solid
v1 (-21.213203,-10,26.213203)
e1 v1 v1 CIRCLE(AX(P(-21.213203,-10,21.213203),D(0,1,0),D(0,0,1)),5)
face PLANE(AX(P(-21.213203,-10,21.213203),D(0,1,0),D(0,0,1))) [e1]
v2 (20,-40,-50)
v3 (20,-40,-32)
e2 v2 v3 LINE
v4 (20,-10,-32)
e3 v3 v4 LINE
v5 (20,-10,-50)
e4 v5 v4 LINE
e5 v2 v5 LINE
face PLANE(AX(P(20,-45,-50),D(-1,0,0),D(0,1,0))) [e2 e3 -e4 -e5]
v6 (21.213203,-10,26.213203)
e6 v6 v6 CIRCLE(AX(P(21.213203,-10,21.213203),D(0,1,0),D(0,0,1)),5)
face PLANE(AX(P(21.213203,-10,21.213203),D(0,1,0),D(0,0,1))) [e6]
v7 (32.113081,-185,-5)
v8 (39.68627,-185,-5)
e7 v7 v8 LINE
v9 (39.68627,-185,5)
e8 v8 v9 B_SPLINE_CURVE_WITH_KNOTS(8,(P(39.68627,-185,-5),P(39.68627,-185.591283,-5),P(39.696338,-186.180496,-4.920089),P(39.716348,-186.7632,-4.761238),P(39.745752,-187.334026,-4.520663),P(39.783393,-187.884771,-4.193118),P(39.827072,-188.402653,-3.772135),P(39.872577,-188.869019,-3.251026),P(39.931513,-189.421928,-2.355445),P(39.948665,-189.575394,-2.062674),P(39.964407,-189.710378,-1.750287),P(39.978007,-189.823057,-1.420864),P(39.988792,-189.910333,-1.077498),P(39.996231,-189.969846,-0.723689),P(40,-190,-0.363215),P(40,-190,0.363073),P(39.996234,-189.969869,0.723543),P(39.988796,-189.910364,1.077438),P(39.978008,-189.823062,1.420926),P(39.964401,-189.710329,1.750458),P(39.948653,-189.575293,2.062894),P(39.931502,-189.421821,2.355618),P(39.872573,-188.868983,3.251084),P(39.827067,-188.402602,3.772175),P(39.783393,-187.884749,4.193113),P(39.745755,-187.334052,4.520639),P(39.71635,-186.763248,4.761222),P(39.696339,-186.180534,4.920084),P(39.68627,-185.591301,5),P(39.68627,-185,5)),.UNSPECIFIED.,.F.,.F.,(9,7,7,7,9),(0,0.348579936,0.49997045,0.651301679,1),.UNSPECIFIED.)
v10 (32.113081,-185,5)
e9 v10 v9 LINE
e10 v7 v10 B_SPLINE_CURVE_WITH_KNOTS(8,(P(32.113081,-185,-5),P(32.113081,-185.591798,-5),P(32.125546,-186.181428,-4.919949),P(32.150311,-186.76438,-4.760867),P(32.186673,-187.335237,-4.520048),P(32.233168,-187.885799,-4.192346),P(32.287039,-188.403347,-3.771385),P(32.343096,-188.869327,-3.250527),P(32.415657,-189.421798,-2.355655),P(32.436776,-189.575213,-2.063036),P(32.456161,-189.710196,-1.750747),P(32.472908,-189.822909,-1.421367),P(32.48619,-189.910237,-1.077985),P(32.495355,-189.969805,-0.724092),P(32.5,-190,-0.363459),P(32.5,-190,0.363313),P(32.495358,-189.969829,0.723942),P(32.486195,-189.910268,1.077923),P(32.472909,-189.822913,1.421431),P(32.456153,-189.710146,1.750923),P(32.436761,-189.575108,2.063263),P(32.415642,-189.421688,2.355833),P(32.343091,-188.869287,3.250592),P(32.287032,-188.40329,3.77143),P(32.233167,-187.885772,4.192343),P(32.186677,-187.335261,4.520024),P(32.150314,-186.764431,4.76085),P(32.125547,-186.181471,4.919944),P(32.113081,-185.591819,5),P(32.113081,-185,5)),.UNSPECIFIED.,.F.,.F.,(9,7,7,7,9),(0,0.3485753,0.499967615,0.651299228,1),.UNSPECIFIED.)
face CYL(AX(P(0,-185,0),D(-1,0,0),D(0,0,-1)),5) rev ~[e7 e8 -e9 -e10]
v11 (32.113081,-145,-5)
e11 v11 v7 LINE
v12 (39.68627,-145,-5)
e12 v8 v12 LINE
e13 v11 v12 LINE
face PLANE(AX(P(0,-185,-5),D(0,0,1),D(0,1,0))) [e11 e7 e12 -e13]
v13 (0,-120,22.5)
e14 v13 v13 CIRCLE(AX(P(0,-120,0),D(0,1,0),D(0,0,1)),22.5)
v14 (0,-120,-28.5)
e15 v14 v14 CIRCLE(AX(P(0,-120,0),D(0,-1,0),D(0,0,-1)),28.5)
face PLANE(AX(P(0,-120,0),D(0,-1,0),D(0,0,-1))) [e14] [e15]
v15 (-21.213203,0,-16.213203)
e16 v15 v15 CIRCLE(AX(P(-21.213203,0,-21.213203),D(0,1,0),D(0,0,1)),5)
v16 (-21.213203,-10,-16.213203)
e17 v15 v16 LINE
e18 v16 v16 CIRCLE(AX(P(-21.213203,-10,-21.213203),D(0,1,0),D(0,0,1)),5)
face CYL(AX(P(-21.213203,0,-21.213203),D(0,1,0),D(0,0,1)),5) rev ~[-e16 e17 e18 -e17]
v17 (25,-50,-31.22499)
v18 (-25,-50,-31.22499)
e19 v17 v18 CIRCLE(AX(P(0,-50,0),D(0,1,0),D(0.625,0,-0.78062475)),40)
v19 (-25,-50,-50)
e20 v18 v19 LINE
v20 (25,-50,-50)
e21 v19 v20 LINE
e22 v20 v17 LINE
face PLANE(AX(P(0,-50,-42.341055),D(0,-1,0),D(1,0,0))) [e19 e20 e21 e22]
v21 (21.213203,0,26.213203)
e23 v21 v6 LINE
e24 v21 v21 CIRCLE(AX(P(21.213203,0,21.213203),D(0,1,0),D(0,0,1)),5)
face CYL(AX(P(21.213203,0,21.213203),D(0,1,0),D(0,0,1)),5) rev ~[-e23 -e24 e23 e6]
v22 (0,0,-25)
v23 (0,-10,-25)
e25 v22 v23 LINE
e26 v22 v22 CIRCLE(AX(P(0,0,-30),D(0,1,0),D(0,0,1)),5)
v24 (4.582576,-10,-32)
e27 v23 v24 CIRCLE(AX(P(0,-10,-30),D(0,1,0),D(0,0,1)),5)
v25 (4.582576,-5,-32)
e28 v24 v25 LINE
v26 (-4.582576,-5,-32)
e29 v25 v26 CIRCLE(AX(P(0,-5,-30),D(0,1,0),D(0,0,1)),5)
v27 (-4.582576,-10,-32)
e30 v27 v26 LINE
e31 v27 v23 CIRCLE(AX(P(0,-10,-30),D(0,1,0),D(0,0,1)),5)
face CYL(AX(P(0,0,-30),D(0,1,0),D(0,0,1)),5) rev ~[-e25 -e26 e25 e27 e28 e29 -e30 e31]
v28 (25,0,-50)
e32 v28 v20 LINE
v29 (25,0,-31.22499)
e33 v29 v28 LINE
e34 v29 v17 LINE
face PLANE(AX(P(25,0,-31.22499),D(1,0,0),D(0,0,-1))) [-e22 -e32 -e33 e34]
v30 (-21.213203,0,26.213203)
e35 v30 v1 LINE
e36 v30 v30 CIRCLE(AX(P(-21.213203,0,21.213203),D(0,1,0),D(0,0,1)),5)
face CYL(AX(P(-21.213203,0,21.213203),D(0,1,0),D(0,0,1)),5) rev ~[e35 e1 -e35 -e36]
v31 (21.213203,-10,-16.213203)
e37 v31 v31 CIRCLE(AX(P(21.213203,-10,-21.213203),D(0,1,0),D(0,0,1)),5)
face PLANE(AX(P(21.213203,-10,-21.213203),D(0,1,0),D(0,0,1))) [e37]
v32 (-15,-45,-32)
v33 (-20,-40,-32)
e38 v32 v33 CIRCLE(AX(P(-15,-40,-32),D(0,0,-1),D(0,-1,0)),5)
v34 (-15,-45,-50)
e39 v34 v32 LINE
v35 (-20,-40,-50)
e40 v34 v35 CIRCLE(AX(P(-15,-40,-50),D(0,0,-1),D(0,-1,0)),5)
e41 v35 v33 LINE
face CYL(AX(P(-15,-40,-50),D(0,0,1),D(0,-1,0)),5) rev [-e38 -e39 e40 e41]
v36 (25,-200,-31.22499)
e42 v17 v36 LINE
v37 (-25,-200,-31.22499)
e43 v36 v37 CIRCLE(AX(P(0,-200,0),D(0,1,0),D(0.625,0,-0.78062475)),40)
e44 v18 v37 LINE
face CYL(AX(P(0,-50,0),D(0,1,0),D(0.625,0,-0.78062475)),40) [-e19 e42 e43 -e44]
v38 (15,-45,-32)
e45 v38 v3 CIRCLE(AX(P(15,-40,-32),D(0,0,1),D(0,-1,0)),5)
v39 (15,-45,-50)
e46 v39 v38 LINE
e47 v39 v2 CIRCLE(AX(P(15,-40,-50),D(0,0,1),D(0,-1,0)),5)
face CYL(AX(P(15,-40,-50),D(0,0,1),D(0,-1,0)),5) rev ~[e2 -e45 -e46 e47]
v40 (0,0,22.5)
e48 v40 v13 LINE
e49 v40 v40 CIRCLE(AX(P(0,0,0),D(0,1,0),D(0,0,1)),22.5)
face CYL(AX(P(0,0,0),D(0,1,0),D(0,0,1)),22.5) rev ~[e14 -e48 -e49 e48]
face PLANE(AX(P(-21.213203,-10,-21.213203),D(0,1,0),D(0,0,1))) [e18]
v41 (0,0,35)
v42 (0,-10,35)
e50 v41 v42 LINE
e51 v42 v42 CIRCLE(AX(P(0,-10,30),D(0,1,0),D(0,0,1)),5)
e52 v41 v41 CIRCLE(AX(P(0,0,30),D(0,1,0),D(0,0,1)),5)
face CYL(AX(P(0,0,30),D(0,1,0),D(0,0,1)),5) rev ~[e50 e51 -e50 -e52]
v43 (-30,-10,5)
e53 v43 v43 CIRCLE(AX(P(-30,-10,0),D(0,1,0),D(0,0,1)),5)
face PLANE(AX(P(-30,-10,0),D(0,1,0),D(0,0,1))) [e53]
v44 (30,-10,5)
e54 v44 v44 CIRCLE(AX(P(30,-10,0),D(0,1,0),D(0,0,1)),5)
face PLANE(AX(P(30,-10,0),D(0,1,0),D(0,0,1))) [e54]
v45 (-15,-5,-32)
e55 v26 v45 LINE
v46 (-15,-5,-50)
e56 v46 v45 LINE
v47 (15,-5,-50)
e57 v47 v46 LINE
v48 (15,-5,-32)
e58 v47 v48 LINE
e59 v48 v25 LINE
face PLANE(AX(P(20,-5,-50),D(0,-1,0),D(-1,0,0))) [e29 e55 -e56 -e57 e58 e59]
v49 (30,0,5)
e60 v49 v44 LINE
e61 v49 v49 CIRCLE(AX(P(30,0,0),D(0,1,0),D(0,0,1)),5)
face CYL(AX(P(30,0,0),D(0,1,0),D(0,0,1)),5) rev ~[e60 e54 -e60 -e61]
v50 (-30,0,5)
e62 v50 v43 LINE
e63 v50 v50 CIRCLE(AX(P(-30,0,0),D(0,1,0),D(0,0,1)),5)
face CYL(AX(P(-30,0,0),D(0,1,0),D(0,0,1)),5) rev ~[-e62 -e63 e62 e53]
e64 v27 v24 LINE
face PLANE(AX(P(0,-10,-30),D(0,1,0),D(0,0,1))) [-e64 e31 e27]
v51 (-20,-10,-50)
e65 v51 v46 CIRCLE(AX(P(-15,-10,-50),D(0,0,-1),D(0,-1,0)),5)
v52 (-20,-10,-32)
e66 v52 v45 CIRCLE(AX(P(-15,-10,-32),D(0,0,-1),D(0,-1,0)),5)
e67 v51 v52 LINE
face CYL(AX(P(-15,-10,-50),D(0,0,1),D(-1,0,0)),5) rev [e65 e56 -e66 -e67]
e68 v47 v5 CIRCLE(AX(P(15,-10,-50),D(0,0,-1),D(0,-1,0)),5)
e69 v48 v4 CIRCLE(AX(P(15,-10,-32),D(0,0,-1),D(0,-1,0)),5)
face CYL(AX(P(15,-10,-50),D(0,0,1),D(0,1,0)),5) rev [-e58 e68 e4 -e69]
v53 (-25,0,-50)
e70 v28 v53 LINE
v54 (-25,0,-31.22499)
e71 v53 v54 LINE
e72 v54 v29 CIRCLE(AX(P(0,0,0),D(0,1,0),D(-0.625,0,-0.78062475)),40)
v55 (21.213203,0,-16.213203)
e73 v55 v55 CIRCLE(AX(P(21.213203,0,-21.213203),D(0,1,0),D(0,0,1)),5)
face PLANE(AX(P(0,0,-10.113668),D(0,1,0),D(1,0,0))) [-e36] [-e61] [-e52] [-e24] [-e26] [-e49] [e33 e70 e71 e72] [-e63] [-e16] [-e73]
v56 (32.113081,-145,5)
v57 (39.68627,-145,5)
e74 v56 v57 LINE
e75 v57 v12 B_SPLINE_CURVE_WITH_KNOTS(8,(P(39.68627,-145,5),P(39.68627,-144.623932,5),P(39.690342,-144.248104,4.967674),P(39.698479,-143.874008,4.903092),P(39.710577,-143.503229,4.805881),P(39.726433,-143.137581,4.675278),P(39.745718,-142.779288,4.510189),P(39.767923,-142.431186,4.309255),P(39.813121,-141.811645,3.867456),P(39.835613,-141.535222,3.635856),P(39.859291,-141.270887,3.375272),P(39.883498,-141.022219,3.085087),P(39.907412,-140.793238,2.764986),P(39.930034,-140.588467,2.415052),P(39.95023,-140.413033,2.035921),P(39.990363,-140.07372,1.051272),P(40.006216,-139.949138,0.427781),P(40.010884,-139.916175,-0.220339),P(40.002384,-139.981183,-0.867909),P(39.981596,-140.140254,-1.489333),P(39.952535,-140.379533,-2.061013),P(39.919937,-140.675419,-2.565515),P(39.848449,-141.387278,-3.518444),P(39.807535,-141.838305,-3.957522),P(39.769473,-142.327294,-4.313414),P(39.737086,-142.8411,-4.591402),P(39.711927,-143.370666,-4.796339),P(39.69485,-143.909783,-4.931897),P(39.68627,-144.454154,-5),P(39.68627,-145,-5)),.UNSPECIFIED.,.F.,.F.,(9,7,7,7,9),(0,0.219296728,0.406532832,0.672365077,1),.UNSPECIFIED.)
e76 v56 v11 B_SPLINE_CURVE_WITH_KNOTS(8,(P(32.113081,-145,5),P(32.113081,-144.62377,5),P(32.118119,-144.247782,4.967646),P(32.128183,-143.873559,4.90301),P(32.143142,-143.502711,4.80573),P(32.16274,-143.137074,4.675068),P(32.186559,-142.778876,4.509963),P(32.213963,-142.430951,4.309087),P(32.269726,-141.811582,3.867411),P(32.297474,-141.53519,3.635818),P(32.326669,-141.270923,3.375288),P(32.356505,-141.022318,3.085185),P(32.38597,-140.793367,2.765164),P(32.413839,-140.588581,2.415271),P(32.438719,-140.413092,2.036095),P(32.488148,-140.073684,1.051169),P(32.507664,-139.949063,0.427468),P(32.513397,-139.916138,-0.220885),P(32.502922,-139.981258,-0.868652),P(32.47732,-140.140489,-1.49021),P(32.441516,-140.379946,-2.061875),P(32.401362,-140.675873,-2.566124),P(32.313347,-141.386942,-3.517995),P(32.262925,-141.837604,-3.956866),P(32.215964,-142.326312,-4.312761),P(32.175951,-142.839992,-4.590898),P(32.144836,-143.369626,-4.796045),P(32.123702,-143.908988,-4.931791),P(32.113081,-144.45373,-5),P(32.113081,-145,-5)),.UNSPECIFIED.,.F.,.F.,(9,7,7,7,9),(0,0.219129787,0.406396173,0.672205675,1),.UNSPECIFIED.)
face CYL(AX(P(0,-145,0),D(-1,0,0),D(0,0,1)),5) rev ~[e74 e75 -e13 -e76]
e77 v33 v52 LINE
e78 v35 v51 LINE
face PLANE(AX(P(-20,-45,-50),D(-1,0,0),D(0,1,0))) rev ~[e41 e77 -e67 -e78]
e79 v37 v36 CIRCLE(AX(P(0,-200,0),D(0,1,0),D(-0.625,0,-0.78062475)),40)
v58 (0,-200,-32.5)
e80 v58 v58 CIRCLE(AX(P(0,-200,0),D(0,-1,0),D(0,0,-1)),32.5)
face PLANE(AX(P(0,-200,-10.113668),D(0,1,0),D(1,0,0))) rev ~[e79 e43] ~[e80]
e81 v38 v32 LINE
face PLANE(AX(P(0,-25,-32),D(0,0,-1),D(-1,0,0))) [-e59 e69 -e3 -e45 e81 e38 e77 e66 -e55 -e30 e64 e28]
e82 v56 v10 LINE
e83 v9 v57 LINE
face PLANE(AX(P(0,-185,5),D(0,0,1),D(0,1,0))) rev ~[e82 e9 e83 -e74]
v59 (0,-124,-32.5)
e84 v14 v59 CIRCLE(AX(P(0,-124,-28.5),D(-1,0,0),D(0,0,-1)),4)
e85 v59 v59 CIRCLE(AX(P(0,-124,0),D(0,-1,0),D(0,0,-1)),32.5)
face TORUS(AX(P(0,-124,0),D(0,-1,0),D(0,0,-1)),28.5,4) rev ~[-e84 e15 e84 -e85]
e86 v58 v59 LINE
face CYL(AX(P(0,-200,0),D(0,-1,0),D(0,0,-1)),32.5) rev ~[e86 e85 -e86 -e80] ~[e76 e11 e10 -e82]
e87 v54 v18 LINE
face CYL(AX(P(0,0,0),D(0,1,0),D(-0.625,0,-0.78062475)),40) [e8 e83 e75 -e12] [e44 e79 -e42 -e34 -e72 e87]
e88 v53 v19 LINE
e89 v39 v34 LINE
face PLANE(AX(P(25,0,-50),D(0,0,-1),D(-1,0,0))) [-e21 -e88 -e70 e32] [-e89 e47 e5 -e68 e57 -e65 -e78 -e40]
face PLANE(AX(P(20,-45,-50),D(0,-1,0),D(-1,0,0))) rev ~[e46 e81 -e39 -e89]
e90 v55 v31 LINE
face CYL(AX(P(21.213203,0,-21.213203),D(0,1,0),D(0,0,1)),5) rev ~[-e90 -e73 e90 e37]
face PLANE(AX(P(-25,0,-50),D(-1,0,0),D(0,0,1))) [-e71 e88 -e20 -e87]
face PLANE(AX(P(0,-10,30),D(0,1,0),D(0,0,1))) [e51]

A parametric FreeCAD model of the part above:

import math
import FreeCAD as App
import Part
import Sketcher
from FreeCAD import Vector


def edges_at(feature, points):
    """Names of the edges that pass closest to the given points."""
    edges = feature.Shape.Edges
    near = lambda p: min(range(len(edges)), key=lambda i: edges[i].distToShape(Part.Vertex(*p))[0])
    return sorted({f"Edge{near(p) + 1}" for p in points})


def add_polygon(sketch, points):
    """Adds a closed chain of lines whose ends are joined by coincident constraints."""
    first, n = sketch.GeometryCount, len(points)
    for a, b in zip(points, points[1:] + points[:1]):
        sketch.addGeometry(Part.LineSegment(App.Vector(*a, 0), App.Vector(*b, 0)), False)
    for i in range(n):
        sketch.addConstraint(Sketcher.Constraint("Coincident", first + i, 2, first + (i + 1) % n, 1))

doc = App.newDocument("Part")
params = doc.addObject("Spreadsheet::Sheet", "Params")
for row, (alias, value) in enumerate([
    ("sketch1_radius", "40 mm"),
    ("sketch1_width", "50 mm"),
    ("pad1_length", "200 mm"),
    ("sketch2_radius", "40 mm"),
    ("sketch2_width", "50 mm"),
    ("pocket1_length", "150 mm"),
    ("sketch3_diameter", "45 mm"),
    ("pocket2_length", "120 mm"),
    ("sketch4_diameter", "65 mm"),
    ("pocket3_length", "80 mm"),
    ("fillet_radius", "4 mm"),
    ("sketch5_width", "40 mm"),
    ("pocket4_length", "18 mm"),
    ("fillet2_radius", "5 mm"),
    ("sketch6_radius", "5 mm"),
    ("sketch6_width", "40 mm"),
    ("pocket5_length", "69 mm"),
    ("sketch7_diameter", "10 mm"),
    ("pocket6_length", "10 mm"),
], start=1):
    params.set(f"A{row}", alias)
    params.set(f"B{row}", "=" + value)
    params.setAlias(f"B{row}", alias)

body = doc.addObject("PartDesign::Body", "Body")

# Sketch on XZ plane
sketch1 = body.newObject("Sketcher::SketchObject", "Sketch")
sketch1.AttachmentSupport = (doc.getObject("XZ_Plane"), [""])
sketch1.MapMode = "FlatFace"
sketch1.addGeometry(Part.LineSegment(Vector(-25, -50, 0), Vector(-25, -31.22499, 0)), False)
sketch1.addGeometry(Part.ArcOfCircle(Part.Circle(Vector(0, 0, 0), Vector(0, 0, 1), 40), math.radians(-51.317813), math.radians(231.317813)), False)
sketch1.addGeometry(Part.LineSegment(Vector(25, -31.22499, 0), Vector(25, -50, 0)), False)
sketch1.addGeometry(Part.LineSegment(Vector(25, -50, 0), Vector(-25, -50, 0)), False)
sketch1.addConstraint(Sketcher.Constraint("Coincident", 0, 2, 1, 2))
sketch1.addConstraint(Sketcher.Constraint("Coincident", 1, 1, 2, 1))
sketch1.addConstraint(Sketcher.Constraint("Coincident", 2, 2, 3, 1))
sketch1.addConstraint(Sketcher.Constraint("Coincident", 3, 2, 0, 1))
sketch1.addConstraint(Sketcher.Constraint("Vertical", 0))
sketch1.addConstraint(Sketcher.Constraint("Vertical", 2))
sketch1.addConstraint(Sketcher.Constraint("Horizontal", 3))
sketch1.addConstraint(Sketcher.Constraint("Coincident", 1, 3, -1, 1))
sketch1.addConstraint(Sketcher.Constraint("Horizontal", 0, 2, 1, 1))
sketch1.addConstraint(Sketcher.Constraint("Radius", 1, 40.0))
sketch1.addConstraint(Sketcher.Constraint("DistanceX", 3, 2, 3, 1, 50.0))
sketch1.addConstraint(Sketcher.Constraint("DistanceY", 2, 2, -1, 1, 50.0))
sketch1.setExpression("Constraints[9]", "Params.sketch1_radius")
sketch1.setExpression("Constraints[10]", "Params.sketch1_width")
pad1 = body.newObject("PartDesign::Pad", "Pad")
pad1.Profile = sketch1
pad1.setExpression("Length", "Params.pad1_length")

# Sketch on XZ plane
sketch2 = body.newObject("Sketcher::SketchObject", "Sketch001")
sketch2.AttachmentSupport = (doc.getObject("XZ_Plane"), [""])
sketch2.MapMode = "FlatFace"
sketch2.AttachmentOffset = App.Placement(Vector(0, 0, 50), App.Rotation())
sketch2.addGeometry(Part.LineSegment(Vector(-25, -31.22499, 0), Vector(-25, -50, 0)), False)
sketch2.addGeometry(Part.LineSegment(Vector(-25, -50, 0), Vector(25, -50, 0)), False)
sketch2.addGeometry(Part.LineSegment(Vector(25, -50, 0), Vector(25, -31.22499, 0)), False)
sketch2.addGeometry(Part.ArcOfCircle(Part.Circle(Vector(0, 0, 0), Vector(0, 0, 1), 40), math.radians(-128.682187), math.radians(-51.317813)), False)
sketch2.addConstraint(Sketcher.Constraint("Coincident", 0, 2, 1, 1))
sketch2.addConstraint(Sketcher.Constraint("Coincident", 1, 2, 2, 1))
sketch2.addConstraint(Sketcher.Constraint("Coincident", 2, 2, 3, 2))
sketch2.addConstraint(Sketcher.Constraint("Coincident", 3, 1, 0, 1))
sketch2.addConstraint(Sketcher.Constraint("Vertical", 0))
sketch2.addConstraint(Sketcher.Constraint("Horizontal", 1))
sketch2.addConstraint(Sketcher.Constraint("Vertical", 2))
sketch2.addConstraint(Sketcher.Constraint("Coincident", 3, 3, -1, 1))
sketch2.addConstraint(Sketcher.Constraint("Horizontal", 2, 2, 3, 1))
sketch2.addConstraint(Sketcher.Constraint("Radius", 3, 40.0))
sketch2.addConstraint(Sketcher.Constraint("DistanceX", 1, 1, 1, 2, 50.0))
sketch2.addConstraint(Sketcher.Constraint("DistanceY", 0, 2, -1, 1, 50.0))
sketch2.setExpression("Constraints[9]", "Params.sketch2_radius")
sketch2.setExpression("Constraints[10]", "Params.sketch2_width")
pocket1 = body.newObject("PartDesign::Pocket", "Pocket")
pocket1.Profile = sketch2
pocket1.setExpression("Length", "Params.pocket1_length")
pocket1.Reversed = True

# Sketch on XZ plane
sketch3 = body.newObject("Sketcher::SketchObject", "Sketch002")
sketch3.AttachmentSupport = (doc.getObject("XZ_Plane"), [""])
sketch3.MapMode = "FlatFace"
sketch3.addGeometry(Part.Circle(Vector(0, 0, 0), Vector(0, 0, 1), 22.5), False)
sketch3.addConstraint(Sketcher.Constraint("Coincident", 0, 3, -1, 1))
sketch3.addConstraint(Sketcher.Constraint("Diameter", 0, 45.0))
sketch3.setExpression("Constraints[1]", "Params.sketch3_diameter")
pocket2 = body.newObject("PartDesign::Pocket", "Pocket001")
pocket2.Profile = sketch3
pocket2.setExpression("Length", "Params.pocket2_length")
pocket2.Reversed = True

# Sketch on XZ plane
sketch4 = body.newObject("Sketcher::SketchObject", "Sketch003")
sketch4.AttachmentSupport = (doc.getObject("XZ_Plane"), [""])
sketch4.MapMode = "FlatFace"
sketch4.AttachmentOffset = App.Placement(Vector(0, 0, 200), App.Rotation())
sketch4.addGeometry(Part.Circle(Vector(0, 0, 0), Vector(0, 0, 1), 32.5), False)
sketch4.addConstraint(Sketcher.Constraint("Coincident", 0, 3, -1, 1))
sketch4.addConstraint(Sketcher.Constraint("Diameter", 0, 65.0))
sketch4.setExpression("Constraints[1]", "Params.sketch4_diameter")
pocket3 = body.newObject("PartDesign::Pocket", "Pocket002")
pocket3.Profile = sketch4
pocket3.setExpression("Length", "Params.pocket3_length")
doc.recompute()

fillet = body.newObject("PartDesign::Fillet", "Fillet")
fillet.Base = (pocket3, edges_at(pocket3, [(0, -120, 32.5)]))
fillet.setExpression("Radius", "Params.fillet_radius")

# Sketch on XY plane
sketch5 = body.newObject("Sketcher::SketchObject", "Sketch004")
sketch5.AttachmentSupport = (doc.getObject("XY_Plane"), [""])
sketch5.MapMode = "FlatFace"
sketch5.AttachmentOffset = App.Placement(Vector(0, 0, -50), App.Rotation())
add_polygon(sketch5, [(20, -5), (20, -45), (-20, -45), (-20, -5)])  # lines 0-3
sketch5.addConstraint(Sketcher.Constraint("Vertical", 0))
sketch5.addConstraint(Sketcher.Constraint("Horizontal", 1))
sketch5.addConstraint(Sketcher.Constraint("Vertical", 2))
sketch5.addConstraint(Sketcher.Constraint("Horizontal", 3))
sketch5.addConstraint(Sketcher.Constraint("Equal", 3, 0))
sketch5.addConstraint(Sketcher.Constraint("DistanceX", 1, 2, 1, 1, 40.0))
sketch5.addConstraint(Sketcher.Constraint("DistanceX", -1, 1, 0, 2, 20.0))
sketch5.addConstraint(Sketcher.Constraint("DistanceY", 0, 2, -1, 1, 45.0))
sketch5.setExpression("Constraints[9]", "Params.sketch5_width")
pocket4 = body.newObject("PartDesign::Pocket", "Pocket003")
pocket4.Profile = sketch5
pocket4.setExpression("Length", "Params.pocket4_length")
pocket4.Reversed = True
doc.recompute()

fillet2 = body.newObject("PartDesign::Fillet", "Fillet001")
fillet2.Base = (pocket4, edges_at(pocket4, [
    (20, -45, -41),
    (20, -5, -41),
    (-20, -5, -41),
    (-20, -45, -41),
]))
fillet2.setExpression("Radius", "Params.fillet2_radius")

# Sketch on YZ plane
sketch6 = body.newObject("Sketcher::SketchObject", "Sketch005")
sketch6.AttachmentSupport = (doc.getObject("YZ_Plane"), [""])
sketch6.MapMode = "FlatFace"
sketch6.addGeometry(Part.LineSegment(Vector(-145, 5, 0), Vector(-185, 5, 0)), False)
sketch6.addGeometry(Part.ArcOfCircle(Part.Circle(Vector(-185, 0, 0), Vector(0, 0, 1), 5), math.radians(90), math.radians(270)), False)
sketch6.addGeometry(Part.LineSegment(Vector(-185, -5, 0), Vector(-145, -5, 0)), False)
sketch6.addGeometry(Part.ArcOfCircle(Part.Circle(Vector(-145, 0, 0), Vector(0, 0, 1), 5), math.radians(-90), math.radians(90)), False)
sketch6.addConstraint(Sketcher.Constraint("Tangent", 0, 2, 1, 1))
sketch6.addConstraint(Sketcher.Constraint("Tangent", 1, 2, 2, 1))
sketch6.addConstraint(Sketcher.Constraint("Tangent", 2, 2, 3, 1))
sketch6.addConstraint(Sketcher.Constraint("Tangent", 3, 2, 0, 1))
sketch6.addConstraint(Sketcher.Constraint("Horizontal", 0))
sketch6.addConstraint(Sketcher.Constraint("Horizontal", 2))
sketch6.addConstraint(Sketcher.Constraint("PointOnObject", 1, 3, -1))
sketch6.addConstraint(Sketcher.Constraint("Radius", 1, 5.0))
sketch6.addConstraint(Sketcher.Constraint("DistanceX", 0, 2, 0, 1, 40.0))
sketch6.addConstraint(Sketcher.Constraint("DistanceX", 1, 3, -1, 1, 185.0))
sketch6.setExpression("Constraints[7]", "Params.sketch6_radius")
sketch6.setExpression("Constraints[8]", "Params.sketch6_width")
pocket5 = body.newObject("PartDesign::Pocket", "Pocket004")
pocket5.Profile = sketch6
pocket5.setExpression("Length", "Params.pocket5_length")
pocket5.Reversed = True

# Sketch on XZ plane
sketch7 = body.newObject("Sketcher::SketchObject", "Sketch006")
sketch7.AttachmentSupport = (doc.getObject("XZ_Plane"), [""])
sketch7.MapMode = "FlatFace"
sketch7.addGeometry(Part.Circle(Vector(30, 0, 0), Vector(0, 0, 1), 5), False)
sketch7.addGeometry(Part.Circle(Vector(21.213203, 21.213203, 0), Vector(0, 0, 1), 5), False)
sketch7.addGeometry(Part.Circle(Vector(0, 30, 0), Vector(0, 0, 1), 5), False)
sketch7.addGeometry(Part.Circle(Vector(-21.213203, 21.213203, 0), Vector(0, 0, 1), 5), False)
sketch7.addGeometry(Part.Circle(Vector(-30, 0, 0), Vector(0, 0, 1), 5), False)
sketch7.addGeometry(Part.Circle(Vector(-21.213203, -21.213203, 0), Vector(0, 0, 1), 5), False)
sketch7.addGeometry(Part.Circle(Vector(0, -30, 0), Vector(0, 0, 1), 5), False)
sketch7.addGeometry(Part.Circle(Vector(21.213203, -21.213203, 0), Vector(0, 0, 1), 5), False)
sketch7.addConstraint(Sketcher.Constraint("Equal", 0, 1))
sketch7.addConstraint(Sketcher.Constraint("Equal", 1, 2))
sketch7.addConstraint(Sketcher.Constraint("Equal", 2, 3))
sketch7.addConstraint(Sketcher.Constraint("Equal", 3, 4))
sketch7.addConstraint(Sketcher.Constraint("Equal", 4, 5))
sketch7.addConstraint(Sketcher.Constraint("Equal", 5, 6))
sketch7.addConstraint(Sketcher.Constraint("Equal", 6, 7))
sketch7.addConstraint(Sketcher.Constraint("Symmetric", 0, 3, 4, 3, -1, 1))
sketch7.addConstraint(Sketcher.Constraint("Symmetric", 1, 3, 5, 3, -1, 1))
sketch7.addConstraint(Sketcher.Constraint("Symmetric", 2, 3, 6, 3, -1, 1))
sketch7.addConstraint(Sketcher.Constraint("Symmetric", 3, 3, 7, 3, -1, 1))
sketch7.addConstraint(Sketcher.Constraint("Symmetric", 1, 3, 3, 3, -2))
sketch7.addConstraint(Sketcher.Constraint("PointOnObject", 0, 3, -1))
sketch7.addConstraint(Sketcher.Constraint("PointOnObject", 2, 3, -2))
sketch7.addConstraint(Sketcher.Constraint("Diameter", 0, 10.0))
sketch7.addConstraint(Sketcher.Constraint("DistanceX", -1, 1, 0, 3, 30.0))
sketch7.addConstraint(Sketcher.Constraint("DistanceY", -1, 1, 2, 3, 30.0))
sketch7.addConstraint(Sketcher.Constraint("DistanceX", -1, 1, 1, 3, 21.213203))
sketch7.addConstraint(Sketcher.Constraint("DistanceY", -1, 1, 1, 3, 21.213203))
sketch7.setExpression("Constraints[14]", "Params.sketch7_diameter")
pocket6 = body.newObject("PartDesign::Pocket", "Pocket005")
pocket6.Profile = sketch7
pocket6.setExpression("Length", "Params.pocket6_length")
pocket6.Reversed = True

doc.recompute()
